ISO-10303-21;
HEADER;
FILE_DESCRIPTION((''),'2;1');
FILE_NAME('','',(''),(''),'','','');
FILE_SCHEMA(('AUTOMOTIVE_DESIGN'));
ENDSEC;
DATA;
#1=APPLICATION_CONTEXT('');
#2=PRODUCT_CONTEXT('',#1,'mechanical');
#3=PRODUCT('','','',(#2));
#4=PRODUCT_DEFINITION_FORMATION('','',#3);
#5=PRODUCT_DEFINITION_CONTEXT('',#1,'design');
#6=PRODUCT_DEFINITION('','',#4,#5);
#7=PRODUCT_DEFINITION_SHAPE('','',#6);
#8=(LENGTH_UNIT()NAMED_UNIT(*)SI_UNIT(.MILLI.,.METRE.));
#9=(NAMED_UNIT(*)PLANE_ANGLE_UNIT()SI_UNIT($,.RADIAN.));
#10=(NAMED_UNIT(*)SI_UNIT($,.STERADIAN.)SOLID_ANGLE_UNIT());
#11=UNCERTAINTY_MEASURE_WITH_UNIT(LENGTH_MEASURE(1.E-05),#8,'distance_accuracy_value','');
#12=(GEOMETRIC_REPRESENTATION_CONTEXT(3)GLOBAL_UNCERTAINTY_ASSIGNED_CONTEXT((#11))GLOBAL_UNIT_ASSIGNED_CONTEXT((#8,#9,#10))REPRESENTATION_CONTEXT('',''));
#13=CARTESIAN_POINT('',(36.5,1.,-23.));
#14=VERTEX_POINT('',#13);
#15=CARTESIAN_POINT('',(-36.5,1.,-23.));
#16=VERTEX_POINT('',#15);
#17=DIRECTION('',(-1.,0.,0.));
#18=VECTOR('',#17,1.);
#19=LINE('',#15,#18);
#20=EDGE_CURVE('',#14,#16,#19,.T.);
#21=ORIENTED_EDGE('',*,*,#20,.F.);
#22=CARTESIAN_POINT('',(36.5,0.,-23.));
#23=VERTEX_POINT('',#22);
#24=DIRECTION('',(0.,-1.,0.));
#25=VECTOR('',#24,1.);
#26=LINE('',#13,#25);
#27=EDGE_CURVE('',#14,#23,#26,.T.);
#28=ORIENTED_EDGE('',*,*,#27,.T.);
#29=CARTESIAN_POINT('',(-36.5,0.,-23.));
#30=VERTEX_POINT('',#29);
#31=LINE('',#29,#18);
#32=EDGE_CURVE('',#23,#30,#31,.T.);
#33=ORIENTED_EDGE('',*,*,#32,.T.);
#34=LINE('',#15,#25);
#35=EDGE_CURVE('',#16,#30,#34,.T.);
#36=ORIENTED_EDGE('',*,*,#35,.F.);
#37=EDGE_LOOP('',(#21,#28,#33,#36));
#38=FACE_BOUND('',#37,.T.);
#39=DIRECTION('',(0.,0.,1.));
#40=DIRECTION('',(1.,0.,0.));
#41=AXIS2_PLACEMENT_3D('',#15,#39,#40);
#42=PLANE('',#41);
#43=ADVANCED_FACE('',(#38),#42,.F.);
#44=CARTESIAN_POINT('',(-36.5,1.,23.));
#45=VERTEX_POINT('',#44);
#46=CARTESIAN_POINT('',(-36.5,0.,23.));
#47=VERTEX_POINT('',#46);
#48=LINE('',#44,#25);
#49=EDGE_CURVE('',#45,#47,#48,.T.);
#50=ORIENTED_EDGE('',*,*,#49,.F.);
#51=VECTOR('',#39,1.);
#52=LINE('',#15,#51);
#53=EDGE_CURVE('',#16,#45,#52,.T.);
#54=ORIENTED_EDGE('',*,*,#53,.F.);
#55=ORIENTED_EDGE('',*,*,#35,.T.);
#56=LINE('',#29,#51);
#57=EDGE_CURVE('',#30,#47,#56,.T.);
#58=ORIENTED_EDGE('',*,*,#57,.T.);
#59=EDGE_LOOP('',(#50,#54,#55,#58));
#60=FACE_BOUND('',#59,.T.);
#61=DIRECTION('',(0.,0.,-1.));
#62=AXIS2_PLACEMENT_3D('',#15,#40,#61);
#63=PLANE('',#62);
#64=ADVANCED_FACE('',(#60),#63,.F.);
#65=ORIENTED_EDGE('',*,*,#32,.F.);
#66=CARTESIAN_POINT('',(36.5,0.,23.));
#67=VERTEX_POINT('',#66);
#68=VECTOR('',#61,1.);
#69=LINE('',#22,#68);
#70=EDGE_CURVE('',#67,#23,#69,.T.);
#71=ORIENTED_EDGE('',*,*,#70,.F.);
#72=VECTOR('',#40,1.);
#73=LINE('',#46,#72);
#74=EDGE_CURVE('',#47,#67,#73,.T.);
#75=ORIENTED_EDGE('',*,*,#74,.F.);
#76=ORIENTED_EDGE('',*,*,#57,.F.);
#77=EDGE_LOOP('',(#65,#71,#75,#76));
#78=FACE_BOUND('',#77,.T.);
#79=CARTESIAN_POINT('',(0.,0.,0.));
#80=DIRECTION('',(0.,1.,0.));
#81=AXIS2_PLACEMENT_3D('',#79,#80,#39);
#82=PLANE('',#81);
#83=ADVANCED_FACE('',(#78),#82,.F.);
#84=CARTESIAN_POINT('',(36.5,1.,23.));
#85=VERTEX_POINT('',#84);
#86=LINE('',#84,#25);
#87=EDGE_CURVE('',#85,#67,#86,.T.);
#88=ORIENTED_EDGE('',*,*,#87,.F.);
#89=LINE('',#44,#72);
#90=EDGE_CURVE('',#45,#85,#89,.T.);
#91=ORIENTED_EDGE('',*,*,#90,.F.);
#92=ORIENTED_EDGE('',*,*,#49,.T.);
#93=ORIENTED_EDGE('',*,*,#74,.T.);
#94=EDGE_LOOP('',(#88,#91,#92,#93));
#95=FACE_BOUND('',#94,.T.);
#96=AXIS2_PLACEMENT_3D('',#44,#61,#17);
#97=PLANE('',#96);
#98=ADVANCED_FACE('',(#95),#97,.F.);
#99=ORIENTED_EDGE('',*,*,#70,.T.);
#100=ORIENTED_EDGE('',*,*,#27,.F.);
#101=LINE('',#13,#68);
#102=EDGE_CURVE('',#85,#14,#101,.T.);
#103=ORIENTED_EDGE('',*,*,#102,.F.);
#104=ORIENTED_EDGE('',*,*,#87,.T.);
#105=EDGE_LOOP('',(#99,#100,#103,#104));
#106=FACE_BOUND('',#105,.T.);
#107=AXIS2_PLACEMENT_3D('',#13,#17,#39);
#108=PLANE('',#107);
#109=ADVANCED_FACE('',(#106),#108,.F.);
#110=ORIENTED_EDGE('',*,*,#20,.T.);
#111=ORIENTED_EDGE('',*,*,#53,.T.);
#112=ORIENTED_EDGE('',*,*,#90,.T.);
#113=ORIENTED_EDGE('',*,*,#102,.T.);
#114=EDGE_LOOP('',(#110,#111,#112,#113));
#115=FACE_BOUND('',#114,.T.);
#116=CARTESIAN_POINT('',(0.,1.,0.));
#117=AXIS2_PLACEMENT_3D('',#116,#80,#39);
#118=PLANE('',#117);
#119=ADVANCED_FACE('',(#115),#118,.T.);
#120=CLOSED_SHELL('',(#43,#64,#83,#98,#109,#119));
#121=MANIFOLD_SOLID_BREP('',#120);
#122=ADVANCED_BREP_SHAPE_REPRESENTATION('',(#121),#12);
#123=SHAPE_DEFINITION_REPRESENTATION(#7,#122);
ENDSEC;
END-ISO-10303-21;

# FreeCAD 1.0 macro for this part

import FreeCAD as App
import Part
import Sketcher
from FreeCAD import Vector


def add_polygon(sketch, points):
    """Adds a closed chain of lines whose ends are joined by coincident constraints."""
    first, n = sketch.GeometryCount, len(points)
    for a, b in zip(points, points[1:] + points[:1]):
        sketch.addGeometry(Part.LineSegment(App.Vector(*a, 0), App.Vector(*b, 0)), False)
    for i in range(n):
        sketch.addConstraint(Sketcher.Constraint("Coincident", first + i, 2, first + (i + 1) % n, 1))

doc = App.newDocument("Part")
body = doc.addObject("PartDesign::Body", "Body")

# Sketch on XZ plane
sketch1 = body.newObject("Sketcher::SketchObject", "Sketch")
sketch1.AttachmentSupport = (doc.getObject("XZ_Plane"), [""])
sketch1.MapMode = "FlatFace"
add_polygon(sketch1, [(-36.5, -23), (-36.5, 23), (36.5, 23), (36.5, -23)])  # lines 0-3
sketch1.addConstraint([
    Sketcher.Constraint("Vertical", 0),
    Sketcher.Constraint("Horizontal", 1),
    Sketcher.Constraint("Vertical", 2),
    Sketcher.Constraint("Horizontal", 3),
    Sketcher.Constraint("Symmetric", 0, 2, 2, 2, -1, 1),
    Sketcher.Constraint("DistanceX", 1, 1, 1, 2, 73.0),
    Sketcher.Constraint("DistanceY", 0, 1, 0, 2, 46.0),
])
pad1 = body.newObject("PartDesign::Pad", "Pad")
pad1.Profile = sketch1
pad1.Length = 1
pad1.Reversed = True

doc.recompute()
